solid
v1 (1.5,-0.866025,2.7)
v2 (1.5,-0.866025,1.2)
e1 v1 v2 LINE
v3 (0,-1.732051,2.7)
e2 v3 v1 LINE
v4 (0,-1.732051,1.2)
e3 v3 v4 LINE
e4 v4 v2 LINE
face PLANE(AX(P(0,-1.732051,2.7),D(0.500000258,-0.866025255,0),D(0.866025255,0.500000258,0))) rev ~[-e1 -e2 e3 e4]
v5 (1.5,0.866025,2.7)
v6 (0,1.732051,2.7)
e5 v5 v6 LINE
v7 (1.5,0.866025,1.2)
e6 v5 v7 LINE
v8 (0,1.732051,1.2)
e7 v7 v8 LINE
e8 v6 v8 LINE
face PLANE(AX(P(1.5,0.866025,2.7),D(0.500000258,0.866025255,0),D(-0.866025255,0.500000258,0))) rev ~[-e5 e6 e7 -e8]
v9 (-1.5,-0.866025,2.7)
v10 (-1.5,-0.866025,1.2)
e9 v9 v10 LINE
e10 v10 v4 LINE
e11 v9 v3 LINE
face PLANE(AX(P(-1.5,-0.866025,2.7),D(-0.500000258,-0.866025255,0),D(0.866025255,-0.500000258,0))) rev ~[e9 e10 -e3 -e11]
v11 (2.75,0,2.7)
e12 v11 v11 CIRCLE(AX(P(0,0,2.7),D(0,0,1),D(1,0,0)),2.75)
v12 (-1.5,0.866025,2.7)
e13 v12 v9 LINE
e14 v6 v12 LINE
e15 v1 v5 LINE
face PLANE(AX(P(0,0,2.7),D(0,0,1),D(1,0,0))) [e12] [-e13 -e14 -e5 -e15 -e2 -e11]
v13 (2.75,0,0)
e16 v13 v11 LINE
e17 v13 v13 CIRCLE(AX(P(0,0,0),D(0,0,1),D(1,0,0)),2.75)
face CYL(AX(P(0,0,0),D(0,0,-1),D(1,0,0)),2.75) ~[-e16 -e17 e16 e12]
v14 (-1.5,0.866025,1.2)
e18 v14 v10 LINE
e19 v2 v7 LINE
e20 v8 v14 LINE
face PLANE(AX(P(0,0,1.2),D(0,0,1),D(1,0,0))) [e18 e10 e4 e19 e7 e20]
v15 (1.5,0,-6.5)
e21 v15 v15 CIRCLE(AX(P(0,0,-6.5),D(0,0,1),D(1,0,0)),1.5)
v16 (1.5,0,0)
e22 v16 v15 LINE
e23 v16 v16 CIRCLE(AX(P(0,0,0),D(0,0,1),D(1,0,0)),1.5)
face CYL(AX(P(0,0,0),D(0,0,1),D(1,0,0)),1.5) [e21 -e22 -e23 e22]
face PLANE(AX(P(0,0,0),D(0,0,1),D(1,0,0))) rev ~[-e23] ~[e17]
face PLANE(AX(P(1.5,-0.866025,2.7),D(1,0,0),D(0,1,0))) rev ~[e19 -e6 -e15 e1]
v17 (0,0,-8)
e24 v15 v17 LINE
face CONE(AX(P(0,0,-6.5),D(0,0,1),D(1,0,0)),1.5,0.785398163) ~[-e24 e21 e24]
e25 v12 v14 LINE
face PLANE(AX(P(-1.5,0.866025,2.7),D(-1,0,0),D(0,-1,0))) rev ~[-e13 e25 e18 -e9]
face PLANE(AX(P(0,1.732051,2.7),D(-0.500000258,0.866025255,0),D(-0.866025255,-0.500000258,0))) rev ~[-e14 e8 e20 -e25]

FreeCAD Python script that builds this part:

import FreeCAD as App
import Part
import Sketcher
Q = App.Units.Quantity


def edges_at(feature, points):
    """Names of the edges that pass closest to the given points."""
    edges = feature.Shape.Edges
    near = lambda p: min(range(len(edges)), key=lambda i: edges[i].distToShape(Part.Vertex(*p))[0])
    return sorted({f"Edge{near(p) + 1}" for p in points})


def add_polygon(sketch, points):
    """Adds a closed chain of lines whose ends are joined by coincident constraints."""
    first, n = sketch.GeometryCount, len(points)
    for a, b in zip(points, points[1:] + points[:1]):
        sketch.addGeometry(Part.LineSegment(App.Vector(*a, 0), App.Vector(*b, 0)), False)
    for i in range(n):
        sketch.addConstraint(Sketcher.Constraint("Coincident", first + i, 2, first + (i + 1) % n, 1))

doc = App.newDocument("Part")
body = doc.addObject("PartDesign::Body", "Body")

sketch1 = body.newObject("Sketcher::SketchObject", "Sketch")
sketch1.AttachmentSupport = (doc.getObject("XY_Plane"), [""])
sketch1.MapMode = "FlatFace"
sketch1.addGeometry(Part.Circle(App.Vector(0, 0, 0), App.Vector(0, 0, 1), 2.8), False)
sketch1.addConstraint(Sketcher.Constraint("Coincident", 0, 3, -1, 1))
sketch1.addConstraint(Sketcher.Constraint("Diameter", 0, 5.5))
pad1 = body.newObject("PartDesign::Pad", "Pad")
pad1.Profile = sketch1
pad1.Length = 2.7

sketch2 = body.newObject("Sketcher::SketchObject", "Sketch001")
sketch2.AttachmentSupport = (doc.getObject("XY_Plane"), [""])
sketch2.MapMode = "FlatFace"
sketch2.addGeometry(Part.Circle(App.Vector(0, 0, 0), App.Vector(0, 0, 1), 1.5), False)
sketch2.addConstraint(Sketcher.Constraint("Coincident", 0, 3, -1, 1))
sketch2.addConstraint(Sketcher.Constraint("Diameter", 0, 3.0))
pad2 = body.newObject("PartDesign::Pad", "Pad001")
pad2.Profile = sketch2
pad2.Length = 8
pad2.Reversed = True
doc.recompute()

chamfer = body.newObject("PartDesign::Chamfer", "Chamfer")
chamfer.Base = (pad2, edges_at(pad2, [(-1.5, 0, -8)]))
chamfer.Size = 1.5

sketch3 = body.newObject("Sketcher::SketchObject", "Sketch002")
sketch3.AttachmentSupport = (doc.getObject("XY_Plane"), [""])
sketch3.MapMode = "FlatFace"
sketch3.AttachmentOffset = App.Placement(App.Vector(0, 0, 2.7), App.Rotation())
add_polygon(sketch3, [(1.5, -0.9), (1.5, 0.9), (0, 1.7), (-1.5, 0.9), (-1.5, -0.9), (0, -1.7)])
sketch3.addConstraint(Sketcher.Constraint("Vertical", 0))
sketch3.addConstraint(Sketcher.Constraint("Vertical", 3))
sketch3.addConstraint(Sketcher.Constraint("Symmetric", 0, 2, 3, 2, -1, 1))
sketch3.addConstraint(Sketcher.Constraint("Symmetric", 1, 2, 4, 2, -1, 1))
sketch3.addConstraint(Sketcher.Constraint("PointOnObject", 1, 2, -2))
sketch3.addConstraint(Sketcher.Constraint("Parallel", 2, 5))
sketch3.addConstraint(Sketcher.Constraint("Horizontal", 0, 2, 2, 2))
sketch3.addConstraint(Sketcher.Constraint("Angle", 1, Q("149.999983 deg")))
sketch3.addConstraint(Sketcher.Constraint("DistanceX", 2, 2, 0, 2, 3.0))
sketch3.addConstraint(Sketcher.Constraint("DistanceY", 0, 1, 0, 2, 1.73205))
pocket1 = body.newObject("PartDesign::Pocket", "Pocket")
pocket1.Profile = sketch3
pocket1.Length = 1.5

doc.recompute()
